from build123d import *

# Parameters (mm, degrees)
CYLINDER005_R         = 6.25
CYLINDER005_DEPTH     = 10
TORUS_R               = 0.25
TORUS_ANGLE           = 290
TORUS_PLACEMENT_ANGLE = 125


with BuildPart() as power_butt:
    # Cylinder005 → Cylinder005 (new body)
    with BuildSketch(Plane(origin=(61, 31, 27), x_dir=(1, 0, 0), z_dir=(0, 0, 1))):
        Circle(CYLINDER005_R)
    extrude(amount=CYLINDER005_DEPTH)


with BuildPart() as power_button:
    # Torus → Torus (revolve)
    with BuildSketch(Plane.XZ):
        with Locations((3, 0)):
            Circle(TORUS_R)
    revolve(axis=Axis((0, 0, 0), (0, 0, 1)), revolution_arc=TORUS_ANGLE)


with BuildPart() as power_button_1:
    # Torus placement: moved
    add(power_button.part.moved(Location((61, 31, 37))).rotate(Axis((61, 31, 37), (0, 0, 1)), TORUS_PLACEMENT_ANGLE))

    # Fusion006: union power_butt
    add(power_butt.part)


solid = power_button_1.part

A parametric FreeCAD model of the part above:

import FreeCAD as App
import Part
import Sketcher
Q = App.Units.Quantity

doc = App.newDocument("Part")
body = doc.addObject("PartDesign::Body", "Body")

# Sketch on XY plane
sketch1 = body.newObject("Sketcher::SketchObject", "Sketch")
sketch1.AttachmentSupport = (doc.getObject("XY_Plane"), [""])
sketch1.MapMode = "FlatFace"
sketch1.AttachmentOffset = App.Placement(App.Vector(0, 0, 27), App.Rotation())
sketch1.addGeometry(Part.Circle(App.Vector(61, 31, 0), App.Vector(0, 0, 1), 6.25), False)
sketch1.addConstraint(Sketcher.Constraint("Diameter", 0, Q("12.5 mm")))
sketch1.addConstraint(Sketcher.Constraint("DistanceX", -1, 1, 0, 3, Q("61 mm")))
sketch1.addConstraint(Sketcher.Constraint("DistanceY", -1, 1, 0, 3, Q("31 mm")))
pad1 = body.newObject("PartDesign::Pad", "Pad")
pad1.Profile = sketch1
pad1.Length = 10
body2 = doc.addObject("PartDesign::Body", "Body001")

# Sketch on XZ plane
sketch2 = body2.newObject("Sketcher::SketchObject", "Sketch001")
sketch2.AttachmentSupport = (doc.getObject("XZ_Plane001"), [""])
sketch2.MapMode = "FlatFace"
sketch2.addGeometry(Part.Circle(App.Vector(3, 0, 0), App.Vector(0, 0, 1), 0.25), False)
sketch2.addConstraint(Sketcher.Constraint("PointOnObject", 0, 3, -1))
sketch2.addConstraint(Sketcher.Constraint("Diameter", 0, Q("0.5 mm")))
sketch2.addConstraint(Sketcher.Constraint("DistanceX", -1, 1, 0, 3, Q("3 mm")))
revolution = body2.newObject("PartDesign::Revolution", "Revolution")
revolution.Profile = sketch2
revolution.ReferenceAxis = (sketch2, ["V_Axis"])
revolution.Angle = 290
body3 = doc.addObject("PartDesign::Body", "Body002")
doc.recompute()

body2.Placement = App.Placement(App.Vector(61, 31, 37), App.Rotation(App.Vector(0, 0, 1), 125))
boolean = body3.newObject("PartDesign::Boolean", "Boolean")
boolean.Type = "Fuse"
boolean.addObjects([body2])
doc.recompute()

boolean2 = body3.newObject("PartDesign::Boolean", "Boolean001")
boolean2.Type = "Fuse"
boolean2.addObjects([body])

doc.recompute()
